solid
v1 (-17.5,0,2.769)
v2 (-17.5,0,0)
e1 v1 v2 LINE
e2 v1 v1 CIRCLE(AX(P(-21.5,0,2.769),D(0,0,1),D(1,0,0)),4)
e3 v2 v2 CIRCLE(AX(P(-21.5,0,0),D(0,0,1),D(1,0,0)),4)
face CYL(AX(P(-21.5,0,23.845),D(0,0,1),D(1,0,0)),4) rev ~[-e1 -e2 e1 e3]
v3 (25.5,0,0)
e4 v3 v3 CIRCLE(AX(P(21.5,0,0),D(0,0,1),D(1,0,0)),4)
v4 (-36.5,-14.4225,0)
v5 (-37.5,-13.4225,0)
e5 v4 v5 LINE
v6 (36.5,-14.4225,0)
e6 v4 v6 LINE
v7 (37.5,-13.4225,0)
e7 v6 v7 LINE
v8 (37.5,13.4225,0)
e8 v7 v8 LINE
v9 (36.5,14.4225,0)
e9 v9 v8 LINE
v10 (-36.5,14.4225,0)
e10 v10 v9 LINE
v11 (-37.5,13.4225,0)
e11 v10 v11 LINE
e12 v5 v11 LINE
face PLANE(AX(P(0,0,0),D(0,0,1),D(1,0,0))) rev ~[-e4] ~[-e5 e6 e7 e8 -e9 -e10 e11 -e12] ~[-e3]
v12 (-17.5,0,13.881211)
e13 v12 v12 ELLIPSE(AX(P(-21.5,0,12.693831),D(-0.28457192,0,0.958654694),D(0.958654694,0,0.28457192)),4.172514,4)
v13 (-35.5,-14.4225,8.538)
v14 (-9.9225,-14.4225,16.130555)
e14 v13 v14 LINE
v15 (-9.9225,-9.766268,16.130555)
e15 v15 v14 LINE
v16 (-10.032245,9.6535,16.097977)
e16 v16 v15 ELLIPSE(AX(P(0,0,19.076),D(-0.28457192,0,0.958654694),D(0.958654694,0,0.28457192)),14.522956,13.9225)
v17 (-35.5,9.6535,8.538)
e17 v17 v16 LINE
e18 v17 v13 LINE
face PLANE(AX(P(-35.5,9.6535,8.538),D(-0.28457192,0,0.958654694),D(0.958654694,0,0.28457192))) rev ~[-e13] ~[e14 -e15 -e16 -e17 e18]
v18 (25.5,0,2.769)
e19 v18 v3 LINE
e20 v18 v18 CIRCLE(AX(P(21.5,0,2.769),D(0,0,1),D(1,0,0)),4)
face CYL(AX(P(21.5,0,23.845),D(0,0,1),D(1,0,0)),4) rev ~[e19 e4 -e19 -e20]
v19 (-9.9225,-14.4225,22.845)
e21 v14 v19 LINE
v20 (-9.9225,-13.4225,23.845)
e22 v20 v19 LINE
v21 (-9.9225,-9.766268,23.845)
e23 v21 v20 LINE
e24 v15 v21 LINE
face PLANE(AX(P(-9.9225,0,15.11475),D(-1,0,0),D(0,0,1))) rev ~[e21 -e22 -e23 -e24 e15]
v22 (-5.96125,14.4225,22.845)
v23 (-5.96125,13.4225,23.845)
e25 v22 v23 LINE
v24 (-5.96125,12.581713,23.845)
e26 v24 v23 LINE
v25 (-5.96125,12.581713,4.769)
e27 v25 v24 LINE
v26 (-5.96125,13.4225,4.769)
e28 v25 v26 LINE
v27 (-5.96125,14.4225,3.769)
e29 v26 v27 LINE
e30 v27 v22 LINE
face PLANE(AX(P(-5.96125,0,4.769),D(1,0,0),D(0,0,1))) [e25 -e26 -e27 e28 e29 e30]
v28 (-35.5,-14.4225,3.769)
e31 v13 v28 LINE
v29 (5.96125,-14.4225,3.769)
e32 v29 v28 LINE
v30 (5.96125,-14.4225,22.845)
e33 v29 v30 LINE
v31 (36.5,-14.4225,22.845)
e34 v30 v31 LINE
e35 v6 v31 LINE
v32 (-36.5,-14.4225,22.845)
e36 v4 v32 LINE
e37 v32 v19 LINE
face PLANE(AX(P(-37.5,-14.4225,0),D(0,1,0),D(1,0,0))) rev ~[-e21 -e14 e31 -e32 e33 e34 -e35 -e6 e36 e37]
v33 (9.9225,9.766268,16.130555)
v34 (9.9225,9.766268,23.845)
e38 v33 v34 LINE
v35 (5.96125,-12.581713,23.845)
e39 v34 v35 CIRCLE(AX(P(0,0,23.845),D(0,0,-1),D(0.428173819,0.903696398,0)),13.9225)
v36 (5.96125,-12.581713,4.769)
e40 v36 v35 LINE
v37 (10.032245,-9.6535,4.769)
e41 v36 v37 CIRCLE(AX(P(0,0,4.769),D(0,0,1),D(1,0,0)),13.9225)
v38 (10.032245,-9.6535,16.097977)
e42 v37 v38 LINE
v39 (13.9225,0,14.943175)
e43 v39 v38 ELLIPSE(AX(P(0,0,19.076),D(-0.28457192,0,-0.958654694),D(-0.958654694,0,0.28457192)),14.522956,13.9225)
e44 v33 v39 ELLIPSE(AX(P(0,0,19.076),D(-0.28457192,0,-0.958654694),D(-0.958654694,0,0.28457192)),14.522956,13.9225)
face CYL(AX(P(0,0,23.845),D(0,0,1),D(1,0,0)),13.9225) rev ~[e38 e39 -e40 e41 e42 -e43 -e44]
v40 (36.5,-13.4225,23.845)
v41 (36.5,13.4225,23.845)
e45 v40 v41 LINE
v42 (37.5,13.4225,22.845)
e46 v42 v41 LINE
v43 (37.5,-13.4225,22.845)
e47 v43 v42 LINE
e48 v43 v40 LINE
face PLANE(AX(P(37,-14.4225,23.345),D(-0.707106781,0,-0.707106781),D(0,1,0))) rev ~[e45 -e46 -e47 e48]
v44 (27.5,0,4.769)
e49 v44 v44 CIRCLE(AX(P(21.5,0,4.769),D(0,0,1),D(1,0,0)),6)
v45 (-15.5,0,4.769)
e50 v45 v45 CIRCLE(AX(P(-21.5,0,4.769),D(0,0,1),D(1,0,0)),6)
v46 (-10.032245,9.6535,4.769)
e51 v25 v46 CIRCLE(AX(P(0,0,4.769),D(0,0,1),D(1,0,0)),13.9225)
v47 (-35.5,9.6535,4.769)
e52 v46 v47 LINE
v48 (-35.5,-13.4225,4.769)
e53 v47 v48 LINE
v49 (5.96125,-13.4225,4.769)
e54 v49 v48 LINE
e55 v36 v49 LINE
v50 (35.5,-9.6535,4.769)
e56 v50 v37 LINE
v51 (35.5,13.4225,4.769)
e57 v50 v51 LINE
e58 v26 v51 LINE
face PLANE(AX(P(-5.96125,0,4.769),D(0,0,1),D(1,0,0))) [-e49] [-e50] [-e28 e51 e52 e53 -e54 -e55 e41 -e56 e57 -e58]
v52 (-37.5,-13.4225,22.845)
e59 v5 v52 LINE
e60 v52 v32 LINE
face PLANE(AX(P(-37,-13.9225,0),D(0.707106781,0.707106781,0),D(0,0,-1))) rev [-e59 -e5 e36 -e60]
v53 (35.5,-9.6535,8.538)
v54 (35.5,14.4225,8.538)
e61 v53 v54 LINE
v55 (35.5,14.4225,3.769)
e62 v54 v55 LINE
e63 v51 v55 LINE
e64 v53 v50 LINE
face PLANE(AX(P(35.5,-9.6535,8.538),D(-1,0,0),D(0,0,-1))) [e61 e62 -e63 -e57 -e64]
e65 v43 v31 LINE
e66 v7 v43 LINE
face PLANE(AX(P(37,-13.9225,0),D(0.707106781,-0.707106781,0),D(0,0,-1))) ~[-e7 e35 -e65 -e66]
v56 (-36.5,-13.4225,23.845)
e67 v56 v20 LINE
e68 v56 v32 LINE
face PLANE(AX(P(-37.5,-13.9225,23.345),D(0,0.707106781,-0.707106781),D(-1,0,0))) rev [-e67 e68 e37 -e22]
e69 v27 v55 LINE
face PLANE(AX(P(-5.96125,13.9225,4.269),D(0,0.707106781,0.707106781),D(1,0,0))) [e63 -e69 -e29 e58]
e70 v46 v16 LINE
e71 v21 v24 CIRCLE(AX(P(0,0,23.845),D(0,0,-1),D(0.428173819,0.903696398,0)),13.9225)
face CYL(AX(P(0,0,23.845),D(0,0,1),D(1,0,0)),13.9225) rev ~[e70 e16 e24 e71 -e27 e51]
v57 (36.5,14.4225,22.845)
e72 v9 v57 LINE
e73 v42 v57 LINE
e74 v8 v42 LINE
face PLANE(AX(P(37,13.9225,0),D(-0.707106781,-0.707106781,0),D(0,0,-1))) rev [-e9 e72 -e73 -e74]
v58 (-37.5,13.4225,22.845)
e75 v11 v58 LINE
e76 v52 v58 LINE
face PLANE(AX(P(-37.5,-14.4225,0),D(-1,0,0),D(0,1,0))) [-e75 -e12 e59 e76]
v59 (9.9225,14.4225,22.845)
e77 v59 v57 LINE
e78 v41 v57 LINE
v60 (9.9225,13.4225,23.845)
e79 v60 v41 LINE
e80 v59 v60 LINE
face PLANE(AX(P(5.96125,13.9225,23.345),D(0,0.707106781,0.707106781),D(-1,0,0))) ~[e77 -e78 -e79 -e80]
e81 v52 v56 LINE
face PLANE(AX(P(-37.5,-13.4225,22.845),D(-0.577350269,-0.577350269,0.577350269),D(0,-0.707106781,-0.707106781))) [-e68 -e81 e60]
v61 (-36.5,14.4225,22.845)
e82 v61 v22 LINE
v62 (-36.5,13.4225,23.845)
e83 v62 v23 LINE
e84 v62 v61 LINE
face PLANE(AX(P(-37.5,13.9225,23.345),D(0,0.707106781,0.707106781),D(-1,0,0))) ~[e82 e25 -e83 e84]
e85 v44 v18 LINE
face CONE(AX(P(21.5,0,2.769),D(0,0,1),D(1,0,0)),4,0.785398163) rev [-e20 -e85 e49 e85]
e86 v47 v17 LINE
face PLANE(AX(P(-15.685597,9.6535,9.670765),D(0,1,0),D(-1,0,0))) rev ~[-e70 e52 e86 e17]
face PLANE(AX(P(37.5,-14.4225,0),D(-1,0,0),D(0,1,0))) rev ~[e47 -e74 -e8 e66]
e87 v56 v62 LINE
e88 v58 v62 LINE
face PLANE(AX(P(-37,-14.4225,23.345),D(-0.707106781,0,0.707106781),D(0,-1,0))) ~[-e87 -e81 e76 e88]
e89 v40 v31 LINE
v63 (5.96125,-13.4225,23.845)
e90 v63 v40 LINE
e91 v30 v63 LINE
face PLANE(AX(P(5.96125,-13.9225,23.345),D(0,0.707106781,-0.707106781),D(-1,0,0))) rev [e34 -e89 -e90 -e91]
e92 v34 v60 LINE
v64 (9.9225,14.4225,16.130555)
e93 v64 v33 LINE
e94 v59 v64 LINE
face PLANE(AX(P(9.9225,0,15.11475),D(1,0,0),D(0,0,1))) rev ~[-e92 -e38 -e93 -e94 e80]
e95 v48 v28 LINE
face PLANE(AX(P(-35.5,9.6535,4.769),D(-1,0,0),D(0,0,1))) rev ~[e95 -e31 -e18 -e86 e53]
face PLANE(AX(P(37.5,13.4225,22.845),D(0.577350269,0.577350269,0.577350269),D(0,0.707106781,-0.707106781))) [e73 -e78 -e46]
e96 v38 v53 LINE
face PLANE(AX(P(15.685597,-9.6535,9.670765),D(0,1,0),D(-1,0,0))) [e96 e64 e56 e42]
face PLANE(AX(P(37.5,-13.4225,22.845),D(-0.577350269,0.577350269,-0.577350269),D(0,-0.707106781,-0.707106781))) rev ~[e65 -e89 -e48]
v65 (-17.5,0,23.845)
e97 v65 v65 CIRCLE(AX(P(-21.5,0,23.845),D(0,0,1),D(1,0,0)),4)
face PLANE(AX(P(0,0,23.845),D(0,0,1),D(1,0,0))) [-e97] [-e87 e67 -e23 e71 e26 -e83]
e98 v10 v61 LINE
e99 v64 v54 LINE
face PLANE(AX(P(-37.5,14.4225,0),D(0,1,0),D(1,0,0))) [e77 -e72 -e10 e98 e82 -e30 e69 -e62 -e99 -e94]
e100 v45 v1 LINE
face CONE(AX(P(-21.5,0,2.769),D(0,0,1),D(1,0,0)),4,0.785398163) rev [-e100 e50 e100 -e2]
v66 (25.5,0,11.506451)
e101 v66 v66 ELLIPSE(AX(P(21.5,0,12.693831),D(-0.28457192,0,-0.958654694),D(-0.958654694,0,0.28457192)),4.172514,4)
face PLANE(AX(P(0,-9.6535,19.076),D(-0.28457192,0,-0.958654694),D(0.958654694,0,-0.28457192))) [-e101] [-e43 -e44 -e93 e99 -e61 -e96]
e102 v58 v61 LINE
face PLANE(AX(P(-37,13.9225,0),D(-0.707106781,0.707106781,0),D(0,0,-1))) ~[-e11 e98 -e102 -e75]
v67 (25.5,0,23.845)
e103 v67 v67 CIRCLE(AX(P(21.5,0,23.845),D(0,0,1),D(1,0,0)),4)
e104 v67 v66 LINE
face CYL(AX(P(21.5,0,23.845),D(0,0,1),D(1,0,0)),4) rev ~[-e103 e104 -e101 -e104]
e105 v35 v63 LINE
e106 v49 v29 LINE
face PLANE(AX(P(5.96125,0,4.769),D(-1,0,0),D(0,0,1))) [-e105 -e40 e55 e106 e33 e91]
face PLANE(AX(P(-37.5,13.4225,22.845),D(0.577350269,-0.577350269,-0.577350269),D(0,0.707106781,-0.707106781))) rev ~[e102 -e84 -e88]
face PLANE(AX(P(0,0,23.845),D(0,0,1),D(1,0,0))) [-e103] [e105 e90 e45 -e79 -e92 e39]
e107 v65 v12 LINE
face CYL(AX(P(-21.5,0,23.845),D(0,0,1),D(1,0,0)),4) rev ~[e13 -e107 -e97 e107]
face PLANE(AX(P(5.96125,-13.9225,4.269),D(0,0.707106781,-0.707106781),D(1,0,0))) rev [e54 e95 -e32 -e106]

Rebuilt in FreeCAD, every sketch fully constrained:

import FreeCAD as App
import Part
import Sketcher

V = App.Vector
Q = App.Units.Quantity


def edges_at(feature, points):
    """Names of the edges that pass closest to the given points."""
    edges = feature.Shape.Edges
    near = lambda p: min(range(len(edges)), key=lambda i: edges[i].distToShape(Part.Vertex(*p))[0])
    return sorted({f"Edge{near(p) + 1}" for p in points})

doc = App.newDocument("Part")
body = doc.addObject("PartDesign::Body", "Body")

# Sketch on XY plane
sketch1 = doc.addObject("Sketcher::SketchObject", "Sketch")
body.addObject(sketch1)
sketch1.AttachmentSupport = (doc.XY_Plane, [""])
sketch1.MapMode = "FlatFace"
sketch1.addGeometry([
    Part.LineSegment(V(-38, 14, 0), V(-38, -14, 0)),
    Part.LineSegment(V(-38, -14, 0), V(38, -14, 0)),
    Part.LineSegment(V(38, -14, 0), V(38, 14, 0)),
    Part.LineSegment(V(38, 14, 0), V(-38, 14, 0)),
], False)
sketch1.addConstraint([
    Sketcher.Constraint("Coincident", 0, 2, 1, 1),
    Sketcher.Constraint("Coincident", 1, 2, 2, 1),
    Sketcher.Constraint("Coincident", 2, 2, 3, 1),
    Sketcher.Constraint("Coincident", 3, 2, 0, 1),
    Sketcher.Constraint("Vertical", 0),
    Sketcher.Constraint("Horizontal", 1),
    Sketcher.Constraint("Vertical", 2),
    Sketcher.Constraint("Horizontal", 3),
    Sketcher.Constraint("Symmetric", 0, 2, 2, 2, -1, 1),
    Sketcher.Constraint("DistanceX", 1, 1, 1, 2, Q("75 mm")),
    Sketcher.Constraint("DistanceY", 0, 2, 0, 1, Q("28.845 mm")),
])
pad1 = doc.addObject("PartDesign::Pad", "Pad")
body.addObject(pad1)
pad1.Profile = sketch1
pad1.Length = 23.845

# Sketch on XZ plane
sketch2 = doc.addObject("Sketcher::SketchObject", "Sketch001")
body.addObject(sketch2)
sketch2.AttachmentSupport = (doc.XZ_Plane, [""])
sketch2.MapMode = "FlatFace"
sketch2.AttachmentOffset = App.Placement(V(0, 0, -9.6535), App.Rotation())
sketch2.addGeometry([
    Part.LineSegment(V(-35.5, 4.8, 0), V(0, 4.8, 0)),
    Part.LineSegment(V(0, 4.8, 0), V(0, 19.1, 0)),
    Part.LineSegment(V(0, 19.1, 0), V(-35.5, 8.5, 0)),
    Part.LineSegment(V(-35.5, 8.5, 0), V(-35.5, 4.8, 0)),
], False)
sketch2.addConstraint([
    Sketcher.Constraint("Coincident", 0, 2, 1, 1),
    Sketcher.Constraint("Coincident", 1, 2, 2, 1),
    Sketcher.Constraint("Coincident", 2, 2, 3, 1),
    Sketcher.Constraint("Coincident", 3, 2, 0, 1),
    Sketcher.Constraint("Horizontal", 0),
    Sketcher.Constraint("Vertical", 1),
    Sketcher.Constraint("Vertical", 3),
    Sketcher.Constraint("PointOnObject", 0, 2, -2),
    Sketcher.Constraint("DistanceX", 0, 1, 0, 2, Q("35.5 mm")),
    Sketcher.Constraint("DistanceY", 1, 1, 1, 2, Q("14.307 mm")),
    Sketcher.Constraint("DistanceY", 3, 2, 3, 1, Q("3.769 mm")),
    Sketcher.Constraint("DistanceY", -1, 1, 0, 2, Q("4.769 mm")),
])
pocket1 = doc.addObject("PartDesign::Pocket", "Pocket")
body.addObject(pocket1)
pocket1.Profile = sketch2
pocket1.Length = 24.076
pocket1.Reversed = True

# Sketch on XZ plane
sketch3 = doc.addObject("Sketcher::SketchObject", "Sketch002")
body.addObject(sketch3)
sketch3.AttachmentSupport = (doc.XZ_Plane, [""])
sketch3.MapMode = "FlatFace"
sketch3.AttachmentOffset = App.Placement(V(0, 0, 9.6535), App.Rotation())
sketch3.addGeometry([
    Part.LineSegment(V(0, 19.1, 0), V(0, 4.8, 0)),
    Part.LineSegment(V(0, 4.8, 0), V(35.5, 4.8, 0)),
    Part.LineSegment(V(35.5, 4.8, 0), V(35.5, 8.5, 0)),
    Part.LineSegment(V(35.5, 8.5, 0), V(0, 19.1, 0)),
], False)
sketch3.addConstraint([
    Sketcher.Constraint("Coincident", 0, 2, 1, 1),
    Sketcher.Constraint("Coincident", 1, 2, 2, 1),
    Sketcher.Constraint("Coincident", 2, 2, 3, 1),
    Sketcher.Constraint("Coincident", 3, 2, 0, 1),
    Sketcher.Constraint("Vertical", 0),
    Sketcher.Constraint("Horizontal", 1),
    Sketcher.Constraint("Vertical", 2),
    Sketcher.Constraint("PointOnObject", 0, 2, -2),
    Sketcher.Constraint("DistanceX", 1, 1, 1, 2, Q("35.5 mm")),
    Sketcher.Constraint("DistanceY", 0, 2, 0, 1, Q("14.307 mm")),
    Sketcher.Constraint("DistanceY", 2, 1, 2, 2, Q("3.769 mm")),
    Sketcher.Constraint("DistanceY", -1, 1, 0, 2, Q("4.769 mm")),
])
pocket2 = doc.addObject("PartDesign::Pocket", "Pocket001")
body.addObject(pocket2)
pocket2.Profile = sketch3
pocket2.Length = 24.076

# Sketch on XY plane
sketch4 = doc.addObject("Sketcher::SketchObject", "Sketch003")
body.addObject(sketch4)
sketch4.AttachmentSupport = (doc.XY_Plane, [""])
sketch4.MapMode = "FlatFace"
sketch4.AttachmentOffset = App.Placement(V(0, 0, 23.845), App.Rotation())
sketch4.addGeometry(Part.Circle(V(0, 0, 0), V(0, 0, 1), 14), False)
sketch4.addConstraint([
    Sketcher.Constraint("Coincident", 0, 3, -1, 1),
    Sketcher.Constraint("Diameter", 0, Q("27.845 mm")),
])
pocket3 = doc.addObject("PartDesign::Pocket", "Pocket002")
body.addObject(pocket3)
pocket3.Profile = sketch4
pocket3.Length = 19.076

# Sketch on XZ plane
sketch5 = doc.addObject("Sketcher::SketchObject", "Sketch004")
body.addObject(sketch5)
sketch5.AttachmentSupport = (doc.XZ_Plane, [""])
sketch5.MapMode = "FlatFace"
sketch5.addGeometry([
    Part.LineSegment(V(-6, 24, 0), V(-6, 5, 0)),
    Part.LineSegment(V(-6, 5, 0), V(6, 5, 0)),
    Part.LineSegment(V(6, 5, 0), V(6, 24, 0)),
    Part.LineSegment(V(6, 24, 0), V(-6, 24, 0)),
], False)
sketch5.addConstraint([
    Sketcher.Constraint("Coincident", 0, 2, 1, 1),
    Sketcher.Constraint("Coincident", 1, 2, 2, 1),
    Sketcher.Constraint("Coincident", 2, 2, 3, 1),
    Sketcher.Constraint("Coincident", 3, 2, 0, 1),
    Sketcher.Constraint("Vertical", 0),
    Sketcher.Constraint("Horizontal", 1),
    Sketcher.Constraint("Vertical", 2),
    Sketcher.Constraint("Horizontal", 3),
    Sketcher.Constraint("DistanceY", 0, 2, 0, 1, Q("19.076 mm")),
    Sketcher.Constraint("DistanceX", 1, 1, 1, 2, Q("11.9225 mm")),
    Sketcher.Constraint("DistanceY", -1, 1, 0, 2, Q("4.769 mm")),
    Sketcher.Constraint("DistanceX", 0, 2, -1, 1, Q("5.96125 mm")),
])
pocket4 = doc.addObject("PartDesign::Pocket", "Pocket003")
body.addObject(pocket4)
pocket4.Profile = sketch5
pocket4.Type = "ThroughAll"
pocket4.Midplane = True

# Sketch on XY plane
sketch6 = doc.addObject("Sketcher::SketchObject", "Sketch005")
body.addObject(sketch6)
sketch6.AttachmentSupport = (doc.XY_Plane, [""])
sketch6.MapMode = "FlatFace"
sketch6.AttachmentOffset = App.Placement(V(0, 0, 23.845), App.Rotation())
sketch6.addGeometry([
    Part.Circle(V(-21.5, 0, 0), V(0, 0, 1), 4),
    Part.Circle(V(21.5, 0, 0), V(0, 0, 1), 4),
], False)
sketch6.addConstraint([
    Sketcher.Constraint("Equal", 0, 1),
    Sketcher.Constraint("Symmetric", 0, 3, 1, 3, -1, 1),
    Sketcher.Constraint("PointOnObject", 0, 3, -1),
    Sketcher.Constraint("Diameter", 0, Q("8 mm")),
    Sketcher.Constraint("DistanceX", 0, 3, 1, 3, Q("43 mm")),
])
pocket5 = doc.addObject("PartDesign::Pocket", "Pocket004")
body.addObject(pocket5)
pocket5.Profile = sketch6
pocket5.Type = "ThroughAll"
doc.recompute()

chamfer = doc.addObject("PartDesign::Chamfer", "Chamfer")
body.addObject(chamfer)
chamfer.Base = (pocket5, edges_at(pocket5, [(-25.5, 0, 4.769), (17.5, 0, 4.769)]))
chamfer.Size = 2
doc.recompute()

chamfer2 = doc.addObject("PartDesign::Chamfer", "Chamfer001")
body.addObject(chamfer2)
chamfer2.Base = (chamfer, edges_at(chamfer, [
    (21.731, 14.422, 23.845),
    (-21.731, 14.422, 23.845),
    (21.731, -14.422, 23.845),
    (-21.731, -14.422, 23.845),
    (-37.5, 0, 23.845),
    (37.5, 0, 23.845),
    (14.769, 14.422, 4.769),
    (-14.769, -14.422, 4.769),
    (-37.5, -14.422, 11.922),
    (37.5, 14.422, 11.922),
    (37.5, -14.422, 11.922),
    (-37.5, 14.422, 11.922),
]))
chamfer2.Size = 1

# Sketch on XZ plane
sketch7 = doc.addObject("Sketcher::SketchObject", "Sketch006")
body.addObject(sketch7)
sketch7.AttachmentSupport = (doc.XZ_Plane, [""])
sketch7.MapMode = "FlatFace"
sketch7.addGeometry([
    Part.LineSegment(V(-9.9, 24.8, 0), V(-9.9, 15.1, 0)),
    Part.LineSegment(V(-9.9, 15.1, 0), V(-5, 15.1, 0)),
    Part.LineSegment(V(-5, 15.1, 0), V(-5, 24.8, 0)),
    Part.LineSegment(V(-5, 24.8, 0), V(-9.9, 24.8, 0)),
], False)
sketch7.addConstraint([
    Sketcher.Constraint("Coincident", 0, 2, 1, 1),
    Sketcher.Constraint("Coincident", 1, 2, 2, 1),
    Sketcher.Constraint("Coincident", 2, 2, 3, 1),
    Sketcher.Constraint("Coincident", 3, 2, 0, 1),
    Sketcher.Constraint("Vertical", 0),
    Sketcher.Constraint("Horizontal", 1),
    Sketcher.Constraint("Vertical", 2),
    Sketcher.Constraint("Horizontal", 3),
    Sketcher.Constraint("DistanceY", -1, 1, 2, 2, Q("24.845 mm")),
    Sketcher.Constraint("DistanceX", 1, 1, 1, 2, Q("4.96125 mm")),
    Sketcher.Constraint("DistanceY", 0, 2, 0, 1, Q("9.73025 mm")),
    Sketcher.Constraint("DistanceX", 0, 2, -1, 1, Q("9.9225 mm")),
])
pocket6 = doc.addObject("PartDesign::Pocket", "Pocket005")
body.addObject(pocket6)
pocket6.Profile = sketch7
pocket6.Length = 29.845
pocket6.Reversed = True

# Sketch on XZ plane
sketch8 = doc.addObject("Sketcher::SketchObject", "Sketch007")
body.addObject(sketch8)
sketch8.AttachmentSupport = (doc.XZ_Plane, [""])
sketch8.MapMode = "FlatFace"
sketch8.addGeometry([
    Part.LineSegment(V(5, 24.8, 0), V(5, 15.1, 0)),
    Part.LineSegment(V(5, 15.1, 0), V(9.9, 15.1, 0)),
    Part.LineSegment(V(9.9, 15.1, 0), V(9.9, 24.8, 0)),
    Part.LineSegment(V(9.9, 24.8, 0), V(5, 24.8, 0)),
], False)
sketch8.addConstraint([
    Sketcher.Constraint("Coincident", 0, 2, 1, 1),
    Sketcher.Constraint("Coincident", 1, 2, 2, 1),
    Sketcher.Constraint("Coincident", 2, 2, 3, 1),
    Sketcher.Constraint("Coincident", 3, 2, 0, 1),
    Sketcher.Constraint("Vertical", 0),
    Sketcher.Constraint("Horizontal", 1),
    Sketcher.Constraint("Vertical", 2),
    Sketcher.Constraint("Horizontal", 3),
    Sketcher.Constraint("DistanceY", -1, 1, 2, 2, Q("24.845 mm")),
    Sketcher.Constraint("DistanceX", 1, 1, 1, 2, Q("4.96125 mm")),
    Sketcher.Constraint("DistanceY", 0, 2, 0, 1, Q("9.73025 mm")),
    Sketcher.Constraint("DistanceX", -1, 1, 1, 2, Q("9.9225 mm")),
])
pocket7 = doc.addObject("PartDesign::Pocket", "Pocket006")
body.addObject(pocket7)
pocket7.Profile = sketch8
pocket7.Length = 29.845

doc.recompute()
